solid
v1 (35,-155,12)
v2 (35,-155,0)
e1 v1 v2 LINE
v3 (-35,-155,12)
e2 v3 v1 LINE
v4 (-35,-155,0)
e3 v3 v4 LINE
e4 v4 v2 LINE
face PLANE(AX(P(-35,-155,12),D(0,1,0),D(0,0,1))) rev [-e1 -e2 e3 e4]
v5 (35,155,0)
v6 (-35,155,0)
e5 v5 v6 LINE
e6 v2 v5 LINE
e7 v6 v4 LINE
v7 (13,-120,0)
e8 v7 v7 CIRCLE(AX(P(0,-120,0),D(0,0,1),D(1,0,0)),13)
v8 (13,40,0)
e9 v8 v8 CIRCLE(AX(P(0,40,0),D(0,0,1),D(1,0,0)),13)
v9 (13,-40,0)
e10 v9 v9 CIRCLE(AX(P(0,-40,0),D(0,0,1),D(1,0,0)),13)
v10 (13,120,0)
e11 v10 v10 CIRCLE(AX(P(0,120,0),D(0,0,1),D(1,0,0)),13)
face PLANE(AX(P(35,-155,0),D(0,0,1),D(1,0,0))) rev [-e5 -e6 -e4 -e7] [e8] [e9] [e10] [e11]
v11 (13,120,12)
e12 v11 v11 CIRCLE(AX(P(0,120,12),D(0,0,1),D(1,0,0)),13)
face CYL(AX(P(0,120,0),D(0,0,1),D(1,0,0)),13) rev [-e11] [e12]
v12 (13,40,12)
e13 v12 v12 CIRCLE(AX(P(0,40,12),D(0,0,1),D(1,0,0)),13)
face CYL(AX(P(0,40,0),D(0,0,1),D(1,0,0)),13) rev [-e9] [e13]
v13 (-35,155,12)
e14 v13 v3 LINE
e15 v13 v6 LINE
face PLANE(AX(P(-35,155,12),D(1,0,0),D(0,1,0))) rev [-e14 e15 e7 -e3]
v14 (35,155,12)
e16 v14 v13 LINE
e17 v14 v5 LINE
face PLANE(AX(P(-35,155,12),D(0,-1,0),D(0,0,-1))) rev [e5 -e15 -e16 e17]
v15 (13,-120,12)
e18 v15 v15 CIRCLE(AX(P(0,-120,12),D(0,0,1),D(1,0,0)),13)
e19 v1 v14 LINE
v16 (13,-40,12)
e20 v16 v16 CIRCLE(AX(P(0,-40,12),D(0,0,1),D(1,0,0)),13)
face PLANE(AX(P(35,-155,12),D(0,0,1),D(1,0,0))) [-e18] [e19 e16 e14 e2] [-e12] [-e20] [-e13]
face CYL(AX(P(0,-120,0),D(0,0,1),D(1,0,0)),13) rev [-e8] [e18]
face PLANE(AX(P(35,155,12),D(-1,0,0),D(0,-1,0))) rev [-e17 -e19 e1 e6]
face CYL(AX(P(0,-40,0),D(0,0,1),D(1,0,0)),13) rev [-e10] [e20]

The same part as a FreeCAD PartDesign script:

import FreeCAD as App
import Part
import Sketcher

V = App.Vector
Q = App.Units.Quantity

doc = App.newDocument("Part")
body = doc.addObject("PartDesign::Body", "Body")

sketch1 = body.newObject("Sketcher::SketchObject", "Sketch")
sketch1.AttachmentSupport = (doc.getObject("XY_Plane"), [""])
sketch1.MapMode = "FlatFace"
sketch1.addGeometry([
    Part.LineSegment(V(-35, 155, 0), V(-35, -155, 0)),
    Part.LineSegment(V(-35, -155, 0), V(35, -155, 0)),
    Part.LineSegment(V(35, -155, 0), V(35, 155, 0)),
    Part.LineSegment(V(35, 155, 0), V(-35, 155, 0)),
], False)
sketch1.addConstraint([
    Sketcher.Constraint("Coincident", 0, 2, 1, 1),
    Sketcher.Constraint("Coincident", 1, 2, 2, 1),
    Sketcher.Constraint("Coincident", 2, 2, 3, 1),
    Sketcher.Constraint("Coincident", 3, 2, 0, 1),
    Sketcher.Constraint("Vertical", 0),
    Sketcher.Constraint("Horizontal", 1),
    Sketcher.Constraint("Vertical", 2),
    Sketcher.Constraint("Horizontal", 3),
    Sketcher.Constraint("Symmetric", 0, 2, 2, 2, -1, 1),
    Sketcher.Constraint("DistanceX", 1, 1, 1, 2, Q("70 mm")),
    Sketcher.Constraint("DistanceY", 0, 2, 0, 1, Q("310 mm")),
])
pad1 = body.newObject("PartDesign::Pad", "Pad")
pad1.Profile = sketch1
pad1.Length = 12

sketch2 = body.newObject("Sketcher::SketchObject", "Sketch001")
sketch2.AttachmentSupport = (doc.getObject("XY_Plane"), [""])
sketch2.MapMode = "FlatFace"
sketch2.AttachmentOffset = App.Placement(V(0, 0, 12), App.Rotation())
sketch2.addGeometry(Part.Circle(V(0, 120, 0), V(0, 0, 1), 13), False)
sketch2.addConstraint([
    Sketcher.Constraint("PointOnObject", 0, 3, -2),
    Sketcher.Constraint("Diameter", 0, Q("26 mm")),
    Sketcher.Constraint("DistanceY", -1, 1, 0, 3, Q("120 mm")),
])
pocket1 = body.newObject("PartDesign::Pocket", "Pocket")
pocket1.Profile = sketch2
pocket1.Type = "ThroughAll"
doc.recompute()

linearpattern = body.newObject("PartDesign::LinearPattern", "LinearPattern")
linearpattern.Originals = [pocket1]
linearpattern.Direction = (doc.getObject("Y_Axis"), [""])
linearpattern.Mode = "offset"
linearpattern.Offset = 80
linearpattern.Occurrences = 4
linearpattern.Reversed = True
body.Tip = linearpattern

doc.recompute()
